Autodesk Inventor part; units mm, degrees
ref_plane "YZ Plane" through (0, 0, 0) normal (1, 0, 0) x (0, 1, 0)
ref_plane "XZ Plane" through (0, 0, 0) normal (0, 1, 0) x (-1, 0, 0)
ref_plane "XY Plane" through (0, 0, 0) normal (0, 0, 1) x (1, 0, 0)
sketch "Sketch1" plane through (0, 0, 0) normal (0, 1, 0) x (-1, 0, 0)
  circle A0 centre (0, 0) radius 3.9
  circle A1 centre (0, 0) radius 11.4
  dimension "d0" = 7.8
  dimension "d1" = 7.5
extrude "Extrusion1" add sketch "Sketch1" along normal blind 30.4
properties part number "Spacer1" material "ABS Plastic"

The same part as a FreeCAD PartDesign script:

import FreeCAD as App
import Part
import Sketcher
from FreeCAD import Vector

doc = App.newDocument("Part")
params = doc.addObject("Spreadsheet::Sheet", "Params")
for row, (alias, value) in enumerate([
    ("sketch1_diameter", "7.8 mm"),
    ("sketch1_diameter2", "22.8 mm"),
    ("pad1_length", "30.4 mm"),
], start=1):
    params.set(f"A{row}", alias)
    params.set(f"B{row}", "=" + value)
    params.setAlias(f"B{row}", alias)

body = doc.addObject("PartDesign::Body", "Body")

sketch1 = doc.addObject("Sketcher::SketchObject", "Sketch")
body.addObject(sketch1)
sketch1.AttachmentSupport = (doc.XZ_Plane, [""])
sketch1.MapMode = "FlatFace"
sketch1.addGeometry([
    Part.Circle(Vector(0, 0, 0), Vector(0, 0, 1), 11.4),
    Part.Circle(Vector(0, 0, 0), Vector(0, 0, 1), 3.9),
], False)
sketch1.addConstraint([
    Sketcher.Constraint("Coincident", 0, 3, -1, 1),
    Sketcher.Constraint("Coincident", 1, 3, -1, 1),
    Sketcher.Constraint("Diameter", 1, 7.8),
    Sketcher.Constraint("Diameter", 0, 22.8),
])
sketch1.setExpression("Constraints[2]", "Params.sketch1_diameter")
sketch1.setExpression("Constraints[3]", "Params.sketch1_diameter2")
pad1 = doc.addObject("PartDesign::Pad", "Pad")
body.addObject(pad1)
pad1.Profile = sketch1
pad1.setExpression("Length", "Params.pad1_length")
pad1.Reversed = True

doc.recompute()
